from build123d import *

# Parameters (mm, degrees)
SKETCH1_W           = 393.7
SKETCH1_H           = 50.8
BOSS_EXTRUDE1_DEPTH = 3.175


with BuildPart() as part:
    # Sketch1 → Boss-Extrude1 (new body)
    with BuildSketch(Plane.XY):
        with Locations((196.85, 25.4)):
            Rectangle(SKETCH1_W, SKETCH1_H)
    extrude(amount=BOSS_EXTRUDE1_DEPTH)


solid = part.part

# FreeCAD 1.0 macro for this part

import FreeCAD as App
import Part
import Sketcher

V = App.Vector
Q = App.Units.Quantity

doc = App.newDocument("Part")
params = doc.addObject("Spreadsheet::Sheet", "Params")
for row, (alias, value) in enumerate([
    ("sketch1_height", "2 in"),
    ("sketch1_width", "15.5 in"),
    ("pad1_length", "0.125 in"),
], start=1):
    params.set(f"A{row}", alias)
    params.set(f"B{row}", "=" + value)
    params.setAlias(f"B{row}", alias)

body = doc.addObject("PartDesign::Body", "Body")

# Sketch on XY plane
sketch1 = doc.addObject("Sketcher::SketchObject", "Sketch")
body.addObject(sketch1)
sketch1.AttachmentSupport = (doc.XY_Plane, [""])
sketch1.MapMode = "FlatFace"
sketch1.addGeometry([
    Part.LineSegment(V(0, 50.8, 0), V(0, 0, 0)),
    Part.LineSegment(V(0, 0, 0), V(393.7, 0, 0)),
    Part.LineSegment(V(393.7, 0, 0), V(393.7, 50.8, 0)),
    Part.LineSegment(V(393.7, 50.8, 0), V(0, 50.8, 0)),
], False)
sketch1.addConstraint([
    Sketcher.Constraint("Coincident", 0, 2, 1, 1),
    Sketcher.Constraint("Coincident", 1, 2, 2, 1),
    Sketcher.Constraint("Coincident", 2, 2, 3, 1),
    Sketcher.Constraint("Coincident", 3, 2, 0, 1),
    Sketcher.Constraint("Vertical", 0),
    Sketcher.Constraint("Horizontal", 1),
    Sketcher.Constraint("Vertical", 2),
    Sketcher.Constraint("Horizontal", 3),
    Sketcher.Constraint("Coincident", 0, 2, -1, 1),
    Sketcher.Constraint("DistanceY", 0, 2, 0, 1, Q("2 in")),
    Sketcher.Constraint("DistanceX", 1, 1, 1, 2, Q("15.5 in")),
])
sketch1.setExpression("Constraints[9]", "Params.sketch1_height")
sketch1.setExpression("Constraints[10]", "Params.sketch1_width")
pad1 = doc.addObject("PartDesign::Pad", "Pad")
body.addObject(pad1)
pad1.Profile = sketch1
pad1.setExpression("Length", "Params.pad1_length")

doc.recompute()
